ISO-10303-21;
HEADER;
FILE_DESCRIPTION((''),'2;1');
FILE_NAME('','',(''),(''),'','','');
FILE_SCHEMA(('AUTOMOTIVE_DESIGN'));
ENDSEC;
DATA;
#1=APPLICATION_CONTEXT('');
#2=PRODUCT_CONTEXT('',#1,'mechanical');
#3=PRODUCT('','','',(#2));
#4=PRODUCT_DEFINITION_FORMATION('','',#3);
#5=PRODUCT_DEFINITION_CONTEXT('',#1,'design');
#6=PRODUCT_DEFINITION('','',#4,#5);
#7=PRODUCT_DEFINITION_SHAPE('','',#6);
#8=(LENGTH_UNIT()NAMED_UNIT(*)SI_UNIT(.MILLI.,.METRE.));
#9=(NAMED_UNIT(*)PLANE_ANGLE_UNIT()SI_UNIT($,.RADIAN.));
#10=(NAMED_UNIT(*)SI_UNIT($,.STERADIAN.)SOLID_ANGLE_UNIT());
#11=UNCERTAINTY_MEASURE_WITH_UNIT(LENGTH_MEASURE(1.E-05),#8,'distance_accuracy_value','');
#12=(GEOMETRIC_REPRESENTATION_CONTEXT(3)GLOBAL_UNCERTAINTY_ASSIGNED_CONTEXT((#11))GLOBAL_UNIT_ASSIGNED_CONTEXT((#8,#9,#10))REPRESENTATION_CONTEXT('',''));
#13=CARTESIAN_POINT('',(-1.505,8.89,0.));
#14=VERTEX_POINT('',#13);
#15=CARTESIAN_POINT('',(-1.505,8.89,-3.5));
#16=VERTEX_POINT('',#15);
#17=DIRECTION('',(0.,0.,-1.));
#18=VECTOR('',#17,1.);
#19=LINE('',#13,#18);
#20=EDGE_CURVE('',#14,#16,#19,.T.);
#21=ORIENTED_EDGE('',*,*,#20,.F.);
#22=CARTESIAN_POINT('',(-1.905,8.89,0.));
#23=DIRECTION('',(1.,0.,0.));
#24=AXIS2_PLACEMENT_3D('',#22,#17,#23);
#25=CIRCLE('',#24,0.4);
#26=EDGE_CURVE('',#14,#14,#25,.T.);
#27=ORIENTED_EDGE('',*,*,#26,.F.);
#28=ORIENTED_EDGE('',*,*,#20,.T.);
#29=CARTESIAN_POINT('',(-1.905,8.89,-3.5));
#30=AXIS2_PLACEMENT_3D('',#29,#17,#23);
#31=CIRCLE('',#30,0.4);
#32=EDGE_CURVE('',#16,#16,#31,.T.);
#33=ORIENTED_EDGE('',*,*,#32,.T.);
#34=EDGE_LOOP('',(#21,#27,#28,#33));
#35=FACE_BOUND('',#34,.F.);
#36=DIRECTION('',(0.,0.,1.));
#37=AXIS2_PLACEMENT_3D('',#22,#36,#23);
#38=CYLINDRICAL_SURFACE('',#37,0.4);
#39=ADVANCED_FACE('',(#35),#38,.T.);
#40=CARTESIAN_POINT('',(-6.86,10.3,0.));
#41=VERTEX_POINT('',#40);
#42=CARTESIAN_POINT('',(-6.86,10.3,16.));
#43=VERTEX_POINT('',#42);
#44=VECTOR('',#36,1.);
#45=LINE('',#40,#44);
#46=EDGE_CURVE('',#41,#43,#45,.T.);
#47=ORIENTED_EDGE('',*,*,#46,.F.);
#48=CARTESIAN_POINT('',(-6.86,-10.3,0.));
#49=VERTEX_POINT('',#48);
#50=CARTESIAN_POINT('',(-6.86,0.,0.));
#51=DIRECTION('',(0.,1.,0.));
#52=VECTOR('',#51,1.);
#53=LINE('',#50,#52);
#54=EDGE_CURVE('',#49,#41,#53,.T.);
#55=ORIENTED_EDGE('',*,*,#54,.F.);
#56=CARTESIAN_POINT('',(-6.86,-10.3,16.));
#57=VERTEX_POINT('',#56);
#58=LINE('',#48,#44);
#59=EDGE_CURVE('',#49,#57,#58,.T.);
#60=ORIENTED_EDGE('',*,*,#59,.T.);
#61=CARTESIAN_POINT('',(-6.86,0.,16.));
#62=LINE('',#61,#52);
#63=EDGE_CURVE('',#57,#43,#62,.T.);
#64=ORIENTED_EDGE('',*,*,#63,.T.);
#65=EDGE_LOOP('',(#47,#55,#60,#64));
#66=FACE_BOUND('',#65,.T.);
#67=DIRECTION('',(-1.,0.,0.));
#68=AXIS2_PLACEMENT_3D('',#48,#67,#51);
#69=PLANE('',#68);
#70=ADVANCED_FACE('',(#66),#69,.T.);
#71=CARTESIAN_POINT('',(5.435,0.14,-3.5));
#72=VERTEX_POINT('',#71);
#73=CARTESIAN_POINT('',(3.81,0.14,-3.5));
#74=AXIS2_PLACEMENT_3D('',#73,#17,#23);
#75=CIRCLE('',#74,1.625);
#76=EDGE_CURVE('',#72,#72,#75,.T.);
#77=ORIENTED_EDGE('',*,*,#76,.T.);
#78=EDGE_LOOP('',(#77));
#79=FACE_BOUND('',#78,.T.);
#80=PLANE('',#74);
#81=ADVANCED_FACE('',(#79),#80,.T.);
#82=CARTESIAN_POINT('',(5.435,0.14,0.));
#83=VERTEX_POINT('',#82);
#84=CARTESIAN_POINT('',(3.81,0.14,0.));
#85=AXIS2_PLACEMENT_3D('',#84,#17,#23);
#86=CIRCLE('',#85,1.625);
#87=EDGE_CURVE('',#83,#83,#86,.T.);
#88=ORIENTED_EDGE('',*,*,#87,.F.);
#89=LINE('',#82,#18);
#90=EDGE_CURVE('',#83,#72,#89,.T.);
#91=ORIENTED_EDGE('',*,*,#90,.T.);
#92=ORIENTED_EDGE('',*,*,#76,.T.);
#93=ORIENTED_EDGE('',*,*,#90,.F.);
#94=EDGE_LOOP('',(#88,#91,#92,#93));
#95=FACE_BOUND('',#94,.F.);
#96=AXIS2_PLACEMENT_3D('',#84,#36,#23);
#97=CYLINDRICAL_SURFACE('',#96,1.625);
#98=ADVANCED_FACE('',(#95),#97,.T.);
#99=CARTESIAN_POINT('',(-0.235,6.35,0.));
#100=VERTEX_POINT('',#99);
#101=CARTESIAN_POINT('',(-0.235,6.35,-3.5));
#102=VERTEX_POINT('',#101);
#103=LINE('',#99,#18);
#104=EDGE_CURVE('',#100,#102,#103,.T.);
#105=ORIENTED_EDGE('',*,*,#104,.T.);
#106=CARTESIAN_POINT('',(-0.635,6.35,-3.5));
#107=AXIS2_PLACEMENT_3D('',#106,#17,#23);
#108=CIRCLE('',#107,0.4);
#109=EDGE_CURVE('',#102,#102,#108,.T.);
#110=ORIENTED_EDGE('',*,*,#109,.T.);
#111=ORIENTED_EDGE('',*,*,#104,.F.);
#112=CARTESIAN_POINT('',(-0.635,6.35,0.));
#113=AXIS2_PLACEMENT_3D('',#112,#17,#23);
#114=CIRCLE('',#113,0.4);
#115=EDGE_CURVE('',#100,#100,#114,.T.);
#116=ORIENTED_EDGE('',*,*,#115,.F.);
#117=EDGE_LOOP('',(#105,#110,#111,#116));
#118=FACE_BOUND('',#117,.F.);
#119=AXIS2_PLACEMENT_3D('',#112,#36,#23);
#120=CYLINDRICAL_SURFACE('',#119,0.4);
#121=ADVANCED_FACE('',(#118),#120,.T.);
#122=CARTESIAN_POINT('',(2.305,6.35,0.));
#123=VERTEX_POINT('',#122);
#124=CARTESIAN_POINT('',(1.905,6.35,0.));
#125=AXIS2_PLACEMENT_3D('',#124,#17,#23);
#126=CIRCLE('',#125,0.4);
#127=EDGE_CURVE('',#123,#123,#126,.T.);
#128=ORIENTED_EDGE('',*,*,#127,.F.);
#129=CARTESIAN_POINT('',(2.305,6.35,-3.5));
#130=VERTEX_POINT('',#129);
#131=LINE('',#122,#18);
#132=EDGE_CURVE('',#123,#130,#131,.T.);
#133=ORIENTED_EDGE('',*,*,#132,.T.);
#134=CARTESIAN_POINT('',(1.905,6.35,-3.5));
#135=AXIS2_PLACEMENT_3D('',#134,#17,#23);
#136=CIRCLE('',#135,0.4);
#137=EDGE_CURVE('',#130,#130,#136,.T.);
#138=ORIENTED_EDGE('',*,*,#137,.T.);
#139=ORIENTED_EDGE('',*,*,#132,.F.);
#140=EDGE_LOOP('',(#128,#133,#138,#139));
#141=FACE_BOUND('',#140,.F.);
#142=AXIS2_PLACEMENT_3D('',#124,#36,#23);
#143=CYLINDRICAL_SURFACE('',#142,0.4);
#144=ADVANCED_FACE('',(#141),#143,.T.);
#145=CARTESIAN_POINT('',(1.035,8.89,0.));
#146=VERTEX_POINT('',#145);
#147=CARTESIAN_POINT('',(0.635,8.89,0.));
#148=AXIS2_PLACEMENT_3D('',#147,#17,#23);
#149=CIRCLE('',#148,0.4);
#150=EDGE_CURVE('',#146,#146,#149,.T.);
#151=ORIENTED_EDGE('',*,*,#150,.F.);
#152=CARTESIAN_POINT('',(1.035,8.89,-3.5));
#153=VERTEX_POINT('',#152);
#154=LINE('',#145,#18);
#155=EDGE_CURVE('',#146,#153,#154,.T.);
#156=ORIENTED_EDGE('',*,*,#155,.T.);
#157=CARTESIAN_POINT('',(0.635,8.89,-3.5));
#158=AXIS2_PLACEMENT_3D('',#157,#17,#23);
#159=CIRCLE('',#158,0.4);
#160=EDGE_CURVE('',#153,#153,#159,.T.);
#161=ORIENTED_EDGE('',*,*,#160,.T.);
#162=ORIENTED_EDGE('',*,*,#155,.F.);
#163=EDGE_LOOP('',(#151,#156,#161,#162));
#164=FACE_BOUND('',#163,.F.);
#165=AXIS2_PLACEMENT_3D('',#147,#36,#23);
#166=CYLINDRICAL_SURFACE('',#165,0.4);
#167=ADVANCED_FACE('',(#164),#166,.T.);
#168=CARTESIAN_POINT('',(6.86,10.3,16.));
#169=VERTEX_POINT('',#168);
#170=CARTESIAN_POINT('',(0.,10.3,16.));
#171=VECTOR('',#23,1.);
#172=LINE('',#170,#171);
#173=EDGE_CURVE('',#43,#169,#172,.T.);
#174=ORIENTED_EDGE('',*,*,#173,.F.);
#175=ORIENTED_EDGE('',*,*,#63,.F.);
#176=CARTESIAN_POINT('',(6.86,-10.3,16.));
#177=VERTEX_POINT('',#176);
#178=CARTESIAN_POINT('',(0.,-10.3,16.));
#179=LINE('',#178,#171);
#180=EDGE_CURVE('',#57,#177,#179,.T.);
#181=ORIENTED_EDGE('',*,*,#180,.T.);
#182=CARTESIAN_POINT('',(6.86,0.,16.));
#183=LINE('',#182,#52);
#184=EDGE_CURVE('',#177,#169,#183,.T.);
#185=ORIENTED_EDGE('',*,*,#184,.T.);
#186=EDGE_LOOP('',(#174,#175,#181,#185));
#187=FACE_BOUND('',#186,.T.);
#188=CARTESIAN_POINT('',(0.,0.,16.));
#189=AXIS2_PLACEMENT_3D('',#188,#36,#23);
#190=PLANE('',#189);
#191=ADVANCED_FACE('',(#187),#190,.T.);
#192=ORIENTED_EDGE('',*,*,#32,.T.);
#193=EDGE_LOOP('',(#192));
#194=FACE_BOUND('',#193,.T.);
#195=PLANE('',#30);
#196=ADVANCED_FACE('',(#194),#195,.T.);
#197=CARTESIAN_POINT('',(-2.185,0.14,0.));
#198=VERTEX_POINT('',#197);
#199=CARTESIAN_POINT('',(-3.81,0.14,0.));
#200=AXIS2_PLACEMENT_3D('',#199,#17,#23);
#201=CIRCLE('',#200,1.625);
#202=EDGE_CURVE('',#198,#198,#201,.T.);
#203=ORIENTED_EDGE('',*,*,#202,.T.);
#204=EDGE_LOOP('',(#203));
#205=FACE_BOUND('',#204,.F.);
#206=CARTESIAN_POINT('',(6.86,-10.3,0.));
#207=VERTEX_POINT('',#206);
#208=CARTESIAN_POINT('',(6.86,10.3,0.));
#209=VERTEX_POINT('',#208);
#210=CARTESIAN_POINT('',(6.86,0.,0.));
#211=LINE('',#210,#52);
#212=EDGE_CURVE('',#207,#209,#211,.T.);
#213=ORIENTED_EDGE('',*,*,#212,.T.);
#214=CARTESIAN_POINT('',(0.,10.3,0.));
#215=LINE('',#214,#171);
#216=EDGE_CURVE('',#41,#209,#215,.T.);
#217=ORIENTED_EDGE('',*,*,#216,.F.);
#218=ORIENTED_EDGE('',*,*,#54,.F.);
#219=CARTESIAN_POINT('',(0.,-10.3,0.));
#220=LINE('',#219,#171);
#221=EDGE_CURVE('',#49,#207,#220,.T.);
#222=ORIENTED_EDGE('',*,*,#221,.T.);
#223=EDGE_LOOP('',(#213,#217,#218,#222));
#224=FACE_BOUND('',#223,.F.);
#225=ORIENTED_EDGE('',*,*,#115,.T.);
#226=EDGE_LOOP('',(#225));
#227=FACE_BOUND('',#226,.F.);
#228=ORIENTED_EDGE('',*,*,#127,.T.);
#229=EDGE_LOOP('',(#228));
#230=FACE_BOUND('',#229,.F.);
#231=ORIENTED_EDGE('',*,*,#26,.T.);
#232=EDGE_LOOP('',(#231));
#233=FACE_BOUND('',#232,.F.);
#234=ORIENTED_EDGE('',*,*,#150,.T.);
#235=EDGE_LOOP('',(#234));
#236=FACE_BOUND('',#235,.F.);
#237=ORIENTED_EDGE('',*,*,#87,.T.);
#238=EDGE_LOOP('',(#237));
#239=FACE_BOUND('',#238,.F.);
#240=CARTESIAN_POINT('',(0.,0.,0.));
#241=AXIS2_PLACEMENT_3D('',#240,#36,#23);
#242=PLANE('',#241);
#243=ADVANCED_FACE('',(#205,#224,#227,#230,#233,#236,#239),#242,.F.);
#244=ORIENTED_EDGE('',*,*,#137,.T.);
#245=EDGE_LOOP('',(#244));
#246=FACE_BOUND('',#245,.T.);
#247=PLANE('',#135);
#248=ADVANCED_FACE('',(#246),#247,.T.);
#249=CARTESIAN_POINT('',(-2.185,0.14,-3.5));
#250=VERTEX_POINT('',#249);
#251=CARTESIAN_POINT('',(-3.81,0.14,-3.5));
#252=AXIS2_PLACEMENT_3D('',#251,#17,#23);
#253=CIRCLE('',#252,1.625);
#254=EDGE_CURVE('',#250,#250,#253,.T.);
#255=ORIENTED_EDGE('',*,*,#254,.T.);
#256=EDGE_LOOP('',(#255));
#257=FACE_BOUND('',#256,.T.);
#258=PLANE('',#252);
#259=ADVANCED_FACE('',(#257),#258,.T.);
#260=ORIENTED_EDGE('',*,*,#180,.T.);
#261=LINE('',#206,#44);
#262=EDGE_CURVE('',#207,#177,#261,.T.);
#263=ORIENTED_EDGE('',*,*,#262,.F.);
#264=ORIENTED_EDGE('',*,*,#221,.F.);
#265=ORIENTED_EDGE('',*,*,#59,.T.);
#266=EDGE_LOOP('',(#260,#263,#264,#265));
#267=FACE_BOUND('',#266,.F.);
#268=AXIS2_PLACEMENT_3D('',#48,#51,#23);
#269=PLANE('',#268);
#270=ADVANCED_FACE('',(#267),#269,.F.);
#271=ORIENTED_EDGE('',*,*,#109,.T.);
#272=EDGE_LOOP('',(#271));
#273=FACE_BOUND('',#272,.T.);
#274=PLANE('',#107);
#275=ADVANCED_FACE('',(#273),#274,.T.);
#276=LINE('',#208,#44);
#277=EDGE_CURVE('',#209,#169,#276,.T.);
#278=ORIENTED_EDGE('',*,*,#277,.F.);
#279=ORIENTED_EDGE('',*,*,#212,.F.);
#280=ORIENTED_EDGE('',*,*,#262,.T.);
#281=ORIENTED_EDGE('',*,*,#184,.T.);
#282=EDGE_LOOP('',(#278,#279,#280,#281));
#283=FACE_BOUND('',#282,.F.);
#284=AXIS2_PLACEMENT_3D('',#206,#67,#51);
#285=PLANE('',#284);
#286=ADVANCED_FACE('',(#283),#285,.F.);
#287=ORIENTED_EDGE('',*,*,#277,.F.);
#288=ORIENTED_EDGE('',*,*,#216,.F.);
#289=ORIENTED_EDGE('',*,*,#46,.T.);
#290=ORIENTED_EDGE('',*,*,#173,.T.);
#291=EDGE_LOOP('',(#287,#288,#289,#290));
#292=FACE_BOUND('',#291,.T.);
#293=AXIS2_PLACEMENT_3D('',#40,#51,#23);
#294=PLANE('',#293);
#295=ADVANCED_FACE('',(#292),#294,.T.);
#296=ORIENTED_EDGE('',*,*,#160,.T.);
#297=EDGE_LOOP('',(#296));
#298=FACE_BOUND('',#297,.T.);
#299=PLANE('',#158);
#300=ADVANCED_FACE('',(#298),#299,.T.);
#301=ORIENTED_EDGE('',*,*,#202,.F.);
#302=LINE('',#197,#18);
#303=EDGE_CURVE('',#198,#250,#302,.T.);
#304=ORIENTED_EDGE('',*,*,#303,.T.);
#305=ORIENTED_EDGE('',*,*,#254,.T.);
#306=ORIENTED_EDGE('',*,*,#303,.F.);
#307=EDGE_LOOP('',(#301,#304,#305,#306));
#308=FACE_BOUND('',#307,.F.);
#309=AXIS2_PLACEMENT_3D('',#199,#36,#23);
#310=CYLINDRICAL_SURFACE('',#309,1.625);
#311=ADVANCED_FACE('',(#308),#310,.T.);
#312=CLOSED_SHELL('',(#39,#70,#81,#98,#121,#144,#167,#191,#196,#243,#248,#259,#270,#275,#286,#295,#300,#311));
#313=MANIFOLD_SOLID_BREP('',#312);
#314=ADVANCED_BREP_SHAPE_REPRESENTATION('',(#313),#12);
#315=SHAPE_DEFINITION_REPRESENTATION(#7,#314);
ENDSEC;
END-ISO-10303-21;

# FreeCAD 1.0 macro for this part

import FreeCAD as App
import Part
import Sketcher
from FreeCAD import Vector

doc = App.newDocument("Part")
params = doc.addObject("Spreadsheet::Sheet", "Params")
for row, (alias, value) in enumerate([
    ("sketch1_height", "20.6 mm"),
    ("sketch1_width", "13.72 mm"),
    ("pad1_length", "16 mm"),
    ("sketch2_diameter", "3.25 mm"),
    ("pad2_length", "3.5 mm"),
    ("sketch3_diameter", "0.8 mm"),
    ("pad3_length", "3.5 mm"),
], start=1):
    params.set(f"A{row}", alias)
    params.set(f"B{row}", "=" + value)
    params.setAlias(f"B{row}", alias)

body = doc.addObject("PartDesign::Body", "Body")

# Sketch on XY plane
sketch1 = body.newObject("Sketcher::SketchObject", "Sketch")
sketch1.AttachmentSupport = (doc.getObject("XY_Plane"), [""])
sketch1.MapMode = "FlatFace"
sketch1.addGeometry([
    Part.LineSegment(Vector(-6.86, 10.3, 0), Vector(-6.86, -10.3, 0)),
    Part.LineSegment(Vector(-6.86, -10.3, 0), Vector(6.86, -10.3, 0)),
    Part.LineSegment(Vector(6.86, -10.3, 0), Vector(6.86, 10.3, 0)),
    Part.LineSegment(Vector(6.86, 10.3, 0), Vector(-6.86, 10.3, 0)),
], False)
sketch1.addConstraint([
    Sketcher.Constraint("Coincident", 0, 2, 1, 1),
    Sketcher.Constraint("Coincident", 1, 2, 2, 1),
    Sketcher.Constraint("Coincident", 2, 2, 3, 1),
    Sketcher.Constraint("Coincident", 3, 2, 0, 1),
    Sketcher.Constraint("Vertical", 0),
    Sketcher.Constraint("Horizontal", 1),
    Sketcher.Constraint("Vertical", 2),
    Sketcher.Constraint("Horizontal", 3),
    Sketcher.Constraint("Symmetric", 0, 2, 2, 2, -1, 1),
    Sketcher.Constraint("DistanceY", 0, 2, 0, 1, 20.6),
    Sketcher.Constraint("DistanceX", 1, 1, 1, 2, 13.72),
])
sketch1.setExpression("Constraints[9]", "Params.sketch1_height")
sketch1.setExpression("Constraints[10]", "Params.sketch1_width")
pad1 = body.newObject("PartDesign::Pad", "Pad")
pad1.Profile = sketch1
pad1.setExpression("Length", "Params.pad1_length")

# Sketch on XY plane
sketch2 = body.newObject("Sketcher::SketchObject", "Sketch001")
sketch2.AttachmentSupport = (doc.getObject("XY_Plane"), [""])
sketch2.MapMode = "FlatFace"
sketch2.addGeometry([
    Part.Circle(Vector(-3.81, 0.14, 0), Vector(0, 0, 1), 1.625),
    Part.Circle(Vector(3.81, 0.14, 0), Vector(0, 0, 1), 1.625),
], False)
sketch2.addConstraint([
    Sketcher.Constraint("Equal", 0, 1),
    Sketcher.Constraint("Symmetric", 0, 3, 1, 3, -2),
    Sketcher.Constraint("Diameter", 0, 3.25),
    Sketcher.Constraint("DistanceX", 0, 3, -1, 1, 3.81),
    Sketcher.Constraint("DistanceY", -1, 1, 0, 3, 0.14),
])
sketch2.setExpression("Constraints[2]", "Params.sketch2_diameter")
pad2 = body.newObject("PartDesign::Pad", "Pad001")
pad2.Profile = sketch2
pad2.setExpression("Length", "Params.pad2_length")
pad2.Reversed = True

# Sketch on XY plane
sketch3 = body.newObject("Sketcher::SketchObject", "Sketch002")
sketch3.AttachmentSupport = (doc.getObject("XY_Plane"), [""])
sketch3.MapMode = "FlatFace"
sketch3.addGeometry([
    Part.Circle(Vector(-0.635, 6.35, 0), Vector(0, 0, 1), 0.4),
    Part.Circle(Vector(1.905, 6.35, 0), Vector(0, 0, 1), 0.4),
    Part.Circle(Vector(-1.905, 8.89, 0), Vector(0, 0, 1), 0.4),
    Part.Circle(Vector(0.635, 8.89, 0), Vector(0, 0, 1), 0.4),
], False)
sketch3.addConstraint([
    Sketcher.Constraint("Equal", 0, 1),
    Sketcher.Constraint("Equal", 1, 2),
    Sketcher.Constraint("Equal", 2, 3),
    Sketcher.Constraint("Horizontal", 0, 3, 1, 3),
    Sketcher.Constraint("Horizontal", 2, 3, 3, 3),
    Sketcher.Constraint("Diameter", 0, 0.8),
    Sketcher.Constraint("DistanceY", -1, 1, 0, 3, 6.35),
    Sketcher.Constraint("DistanceY", -1, 1, 2, 3, 8.89),
    Sketcher.Constraint("DistanceX", 0, 3, 1, 3, 2.54),
    Sketcher.Constraint("DistanceX", 2, 3, 0, 3, 1.27),
    Sketcher.Constraint("DistanceX", 2, 3, 3, 3, 2.54),
    Sketcher.Constraint("DistanceX", 0, 3, -1, 1, 0.635),
])
sketch3.setExpression("Constraints[5]", "Params.sketch3_diameter")
pad3 = body.newObject("PartDesign::Pad", "Pad002")
pad3.Profile = sketch3
pad3.setExpression("Length", "Params.pad3_length")
pad3.Reversed = True

doc.recompute()
